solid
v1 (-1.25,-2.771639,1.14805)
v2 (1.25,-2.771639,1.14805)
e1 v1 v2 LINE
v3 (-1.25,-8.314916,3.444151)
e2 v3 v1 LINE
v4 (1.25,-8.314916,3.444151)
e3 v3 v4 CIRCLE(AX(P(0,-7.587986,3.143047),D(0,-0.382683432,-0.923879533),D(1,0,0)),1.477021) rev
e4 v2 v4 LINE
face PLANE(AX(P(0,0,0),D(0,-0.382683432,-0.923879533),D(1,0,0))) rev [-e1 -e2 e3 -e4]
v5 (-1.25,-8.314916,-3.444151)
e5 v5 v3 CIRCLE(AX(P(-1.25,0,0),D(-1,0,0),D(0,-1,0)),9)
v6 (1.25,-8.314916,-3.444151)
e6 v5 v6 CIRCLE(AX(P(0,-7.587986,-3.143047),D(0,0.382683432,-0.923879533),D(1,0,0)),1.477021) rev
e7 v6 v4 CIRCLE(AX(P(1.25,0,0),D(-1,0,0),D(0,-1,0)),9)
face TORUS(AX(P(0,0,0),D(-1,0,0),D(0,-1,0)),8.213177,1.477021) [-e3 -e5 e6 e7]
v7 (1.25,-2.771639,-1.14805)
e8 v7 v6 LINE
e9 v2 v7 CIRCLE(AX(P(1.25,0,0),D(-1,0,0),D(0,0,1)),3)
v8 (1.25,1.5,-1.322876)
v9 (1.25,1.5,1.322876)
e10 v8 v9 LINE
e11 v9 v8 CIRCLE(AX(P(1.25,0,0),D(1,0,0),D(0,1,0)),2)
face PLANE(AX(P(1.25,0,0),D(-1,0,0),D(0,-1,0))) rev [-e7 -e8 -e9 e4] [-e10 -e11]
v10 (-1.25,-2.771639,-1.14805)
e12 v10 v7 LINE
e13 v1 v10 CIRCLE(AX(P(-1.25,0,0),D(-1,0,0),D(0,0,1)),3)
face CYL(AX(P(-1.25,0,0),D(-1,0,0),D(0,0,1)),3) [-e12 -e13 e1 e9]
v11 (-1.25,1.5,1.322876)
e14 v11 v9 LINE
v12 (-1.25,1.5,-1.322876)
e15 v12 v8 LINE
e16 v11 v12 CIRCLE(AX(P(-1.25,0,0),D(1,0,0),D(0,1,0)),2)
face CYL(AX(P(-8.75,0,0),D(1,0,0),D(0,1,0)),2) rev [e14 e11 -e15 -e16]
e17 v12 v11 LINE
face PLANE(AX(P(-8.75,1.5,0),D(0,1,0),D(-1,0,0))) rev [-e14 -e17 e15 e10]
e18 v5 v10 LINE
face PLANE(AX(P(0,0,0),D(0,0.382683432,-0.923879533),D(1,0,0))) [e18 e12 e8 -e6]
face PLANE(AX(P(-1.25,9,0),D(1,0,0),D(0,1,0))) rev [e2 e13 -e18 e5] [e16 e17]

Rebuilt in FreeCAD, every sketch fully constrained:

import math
import FreeCAD as App
import Part
import Sketcher
from FreeCAD import Vector
Q = App.Units.Quantity

doc = App.newDocument("Part")
body = doc.addObject("PartDesign::Body", "Body")

# Sketch on XY plane
sketch1 = body.newObject("Sketcher::SketchObject", "Sketch")
sketch1.AttachmentSupport = (doc.getObject("XY_Plane"), [""])
sketch1.MapMode = "FlatFace"
sketch1.addGeometry([
    Part.LineSegment(Vector(1.2, 0, 0), Vector(1.2, 9, 0)),
    Part.ArcOfCircle(Part.Circle(Vector(0, 8.2, 0), Vector(0, 0, 1), 1.5), math.radians(32), math.radians(148)),
    Part.LineSegment(Vector(-1.2, 9, 0), Vector(-1.2, 0, 0)),
    Part.LineSegment(Vector(-1.2, 0, 0), Vector(1.2, 0, 0)),
], False)
sketch1.addConstraint([
    Sketcher.Constraint("Coincident", 0, 2, 1, 1),
    Sketcher.Constraint("Coincident", 1, 2, 2, 1),
    Sketcher.Constraint("Coincident", 2, 2, 3, 1),
    Sketcher.Constraint("Coincident", 3, 2, 0, 1),
    Sketcher.Constraint("Vertical", 0),
    Sketcher.Constraint("Vertical", 2),
    Sketcher.Constraint("Horizontal", 3),
    Sketcher.Constraint("Symmetric", 2, 2, 3, 2, -1, 1),
    Sketcher.Constraint("PointOnObject", 1, 3, -2),
    Sketcher.Constraint("DistanceY", 0, 1, 0, 2, Q("9 mm")),
    Sketcher.Constraint("DistanceX", 3, 1, 3, 2, Q("2.5 mm")),
    Sketcher.Constraint("Radius", 1, Q("1.477021 mm")),
])
revolution = body.newObject("PartDesign::Revolution", "Revolution")
revolution.Profile = sketch1
revolution.ReferenceAxis = (sketch1, ["H_Axis"])
revolution.Angle = 360

# Sketch on YZ plane
sketch2 = body.newObject("Sketcher::SketchObject", "Sketch001")
sketch2.AttachmentSupport = (doc.getObject("YZ_Plane"), [""])
sketch2.MapMode = "FlatFace"
sketch2.AttachmentOffset = App.Placement(Vector(0, 0, 1.25), App.Rotation())
sketch2.addGeometry([
    Part.LineSegment(Vector(1.5, -1.3, 0), Vector(1.5, 1.3, 0)),
    Part.ArcOfCircle(Part.Circle(Vector(0, 0, 0), Vector(0, 0, 1), 2), math.radians(41), math.radians(319)),
], False)
sketch2.addConstraint([
    Sketcher.Constraint("Coincident", 0, 1, 1, 2),
    Sketcher.Constraint("Coincident", 1, 1, 0, 2),
    Sketcher.Constraint("Vertical", 0),
    Sketcher.Constraint("Coincident", 1, 3, -1, 1),
    Sketcher.Constraint("Radius", 1, Q("2 mm")),
    Sketcher.Constraint("DistanceX", -1, 1, 0, 1, Q("1.5 mm")),
])
pocket1 = body.newObject("PartDesign::Pocket", "Pocket")
pocket1.Profile = sketch2
pocket1.Length = 10

# Sketch on XY plane
sketch3 = body.newObject("Sketcher::SketchObject", "Sketch002")
sketch3.AttachmentSupport = (doc.getObject("XY_Plane"), [""])
sketch3.MapMode = "FlatFace"
sketch3.addGeometry([
    Part.ArcOfCircle(Part.Circle(Vector(0, 8.2, 0), Vector(0, 0, 1), 1.5), math.radians(32), math.radians(148)),
    Part.LineSegment(Vector(-1.2, 9, 0), Vector(-1.2, 3, 0)),
    Part.LineSegment(Vector(-1.2, 3, 0), Vector(1.2, 3, 0)),
    Part.LineSegment(Vector(1.2, 3, 0), Vector(1.2, 9, 0)),
], False)
sketch3.addConstraint([
    Sketcher.Constraint("Coincident", 0, 2, 1, 1),
    Sketcher.Constraint("Coincident", 1, 2, 2, 1),
    Sketcher.Constraint("Coincident", 2, 2, 3, 1),
    Sketcher.Constraint("Coincident", 3, 2, 0, 1),
    Sketcher.Constraint("Vertical", 1),
    Sketcher.Constraint("Horizontal", 2),
    Sketcher.Constraint("Vertical", 3),
    Sketcher.Constraint("Symmetric", 0, 2, 3, 2, -2),
    Sketcher.Constraint("DistanceY", 1, 2, 1, 1, Q("6 mm")),
    Sketcher.Constraint("DistanceX", 2, 1, 2, 2, Q("2.5 mm")),
    Sketcher.Constraint("DistanceY", -1, 1, 0, 2, Q("9 mm")),
    Sketcher.Constraint("Radius", 0, Q("1.477021 mm")),
])
groove = body.newObject("PartDesign::Groove", "Groove")
groove.Profile = sketch3
groove.ReferenceAxis = (sketch3, ["H_Axis"])
groove.Angle = 157.5

# Sketch on XY plane
sketch4 = body.newObject("Sketcher::SketchObject", "Sketch003")
sketch4.AttachmentSupport = (doc.getObject("XY_Plane"), [""])
sketch4.MapMode = "FlatFace"
sketch4.addGeometry([
    Part.ArcOfCircle(Part.Circle(Vector(0, 8.2, 0), Vector(0, 0, 1), 1.5), math.radians(32), math.radians(148)),
    Part.LineSegment(Vector(-1.2, 9, 0), Vector(-1.2, 3, 0)),
    Part.LineSegment(Vector(-1.2, 3, 0), Vector(1.2, 3, 0)),
    Part.LineSegment(Vector(1.2, 3, 0), Vector(1.2, 9, 0)),
], False)
sketch4.addConstraint([
    Sketcher.Constraint("Coincident", 0, 2, 1, 1),
    Sketcher.Constraint("Coincident", 1, 2, 2, 1),
    Sketcher.Constraint("Coincident", 2, 2, 3, 1),
    Sketcher.Constraint("Coincident", 3, 2, 0, 1),
    Sketcher.Constraint("Vertical", 1),
    Sketcher.Constraint("Horizontal", 2),
    Sketcher.Constraint("Vertical", 3),
    Sketcher.Constraint("Symmetric", 0, 2, 3, 2, -2),
    Sketcher.Constraint("DistanceY", 1, 2, 1, 1, Q("6 mm")),
    Sketcher.Constraint("DistanceX", 2, 1, 2, 2, Q("2.5 mm")),
    Sketcher.Constraint("DistanceY", -1, 1, 0, 2, Q("9 mm")),
    Sketcher.Constraint("Radius", 0, Q("1.477021 mm")),
])
groove2 = body.newObject("PartDesign::Groove", "Groove001")
groove2.Profile = sketch4
groove2.ReferenceAxis = (sketch4, ["H_Axis"])
groove2.Angle = 157.5
groove2.Reversed = True

doc.recompute()
